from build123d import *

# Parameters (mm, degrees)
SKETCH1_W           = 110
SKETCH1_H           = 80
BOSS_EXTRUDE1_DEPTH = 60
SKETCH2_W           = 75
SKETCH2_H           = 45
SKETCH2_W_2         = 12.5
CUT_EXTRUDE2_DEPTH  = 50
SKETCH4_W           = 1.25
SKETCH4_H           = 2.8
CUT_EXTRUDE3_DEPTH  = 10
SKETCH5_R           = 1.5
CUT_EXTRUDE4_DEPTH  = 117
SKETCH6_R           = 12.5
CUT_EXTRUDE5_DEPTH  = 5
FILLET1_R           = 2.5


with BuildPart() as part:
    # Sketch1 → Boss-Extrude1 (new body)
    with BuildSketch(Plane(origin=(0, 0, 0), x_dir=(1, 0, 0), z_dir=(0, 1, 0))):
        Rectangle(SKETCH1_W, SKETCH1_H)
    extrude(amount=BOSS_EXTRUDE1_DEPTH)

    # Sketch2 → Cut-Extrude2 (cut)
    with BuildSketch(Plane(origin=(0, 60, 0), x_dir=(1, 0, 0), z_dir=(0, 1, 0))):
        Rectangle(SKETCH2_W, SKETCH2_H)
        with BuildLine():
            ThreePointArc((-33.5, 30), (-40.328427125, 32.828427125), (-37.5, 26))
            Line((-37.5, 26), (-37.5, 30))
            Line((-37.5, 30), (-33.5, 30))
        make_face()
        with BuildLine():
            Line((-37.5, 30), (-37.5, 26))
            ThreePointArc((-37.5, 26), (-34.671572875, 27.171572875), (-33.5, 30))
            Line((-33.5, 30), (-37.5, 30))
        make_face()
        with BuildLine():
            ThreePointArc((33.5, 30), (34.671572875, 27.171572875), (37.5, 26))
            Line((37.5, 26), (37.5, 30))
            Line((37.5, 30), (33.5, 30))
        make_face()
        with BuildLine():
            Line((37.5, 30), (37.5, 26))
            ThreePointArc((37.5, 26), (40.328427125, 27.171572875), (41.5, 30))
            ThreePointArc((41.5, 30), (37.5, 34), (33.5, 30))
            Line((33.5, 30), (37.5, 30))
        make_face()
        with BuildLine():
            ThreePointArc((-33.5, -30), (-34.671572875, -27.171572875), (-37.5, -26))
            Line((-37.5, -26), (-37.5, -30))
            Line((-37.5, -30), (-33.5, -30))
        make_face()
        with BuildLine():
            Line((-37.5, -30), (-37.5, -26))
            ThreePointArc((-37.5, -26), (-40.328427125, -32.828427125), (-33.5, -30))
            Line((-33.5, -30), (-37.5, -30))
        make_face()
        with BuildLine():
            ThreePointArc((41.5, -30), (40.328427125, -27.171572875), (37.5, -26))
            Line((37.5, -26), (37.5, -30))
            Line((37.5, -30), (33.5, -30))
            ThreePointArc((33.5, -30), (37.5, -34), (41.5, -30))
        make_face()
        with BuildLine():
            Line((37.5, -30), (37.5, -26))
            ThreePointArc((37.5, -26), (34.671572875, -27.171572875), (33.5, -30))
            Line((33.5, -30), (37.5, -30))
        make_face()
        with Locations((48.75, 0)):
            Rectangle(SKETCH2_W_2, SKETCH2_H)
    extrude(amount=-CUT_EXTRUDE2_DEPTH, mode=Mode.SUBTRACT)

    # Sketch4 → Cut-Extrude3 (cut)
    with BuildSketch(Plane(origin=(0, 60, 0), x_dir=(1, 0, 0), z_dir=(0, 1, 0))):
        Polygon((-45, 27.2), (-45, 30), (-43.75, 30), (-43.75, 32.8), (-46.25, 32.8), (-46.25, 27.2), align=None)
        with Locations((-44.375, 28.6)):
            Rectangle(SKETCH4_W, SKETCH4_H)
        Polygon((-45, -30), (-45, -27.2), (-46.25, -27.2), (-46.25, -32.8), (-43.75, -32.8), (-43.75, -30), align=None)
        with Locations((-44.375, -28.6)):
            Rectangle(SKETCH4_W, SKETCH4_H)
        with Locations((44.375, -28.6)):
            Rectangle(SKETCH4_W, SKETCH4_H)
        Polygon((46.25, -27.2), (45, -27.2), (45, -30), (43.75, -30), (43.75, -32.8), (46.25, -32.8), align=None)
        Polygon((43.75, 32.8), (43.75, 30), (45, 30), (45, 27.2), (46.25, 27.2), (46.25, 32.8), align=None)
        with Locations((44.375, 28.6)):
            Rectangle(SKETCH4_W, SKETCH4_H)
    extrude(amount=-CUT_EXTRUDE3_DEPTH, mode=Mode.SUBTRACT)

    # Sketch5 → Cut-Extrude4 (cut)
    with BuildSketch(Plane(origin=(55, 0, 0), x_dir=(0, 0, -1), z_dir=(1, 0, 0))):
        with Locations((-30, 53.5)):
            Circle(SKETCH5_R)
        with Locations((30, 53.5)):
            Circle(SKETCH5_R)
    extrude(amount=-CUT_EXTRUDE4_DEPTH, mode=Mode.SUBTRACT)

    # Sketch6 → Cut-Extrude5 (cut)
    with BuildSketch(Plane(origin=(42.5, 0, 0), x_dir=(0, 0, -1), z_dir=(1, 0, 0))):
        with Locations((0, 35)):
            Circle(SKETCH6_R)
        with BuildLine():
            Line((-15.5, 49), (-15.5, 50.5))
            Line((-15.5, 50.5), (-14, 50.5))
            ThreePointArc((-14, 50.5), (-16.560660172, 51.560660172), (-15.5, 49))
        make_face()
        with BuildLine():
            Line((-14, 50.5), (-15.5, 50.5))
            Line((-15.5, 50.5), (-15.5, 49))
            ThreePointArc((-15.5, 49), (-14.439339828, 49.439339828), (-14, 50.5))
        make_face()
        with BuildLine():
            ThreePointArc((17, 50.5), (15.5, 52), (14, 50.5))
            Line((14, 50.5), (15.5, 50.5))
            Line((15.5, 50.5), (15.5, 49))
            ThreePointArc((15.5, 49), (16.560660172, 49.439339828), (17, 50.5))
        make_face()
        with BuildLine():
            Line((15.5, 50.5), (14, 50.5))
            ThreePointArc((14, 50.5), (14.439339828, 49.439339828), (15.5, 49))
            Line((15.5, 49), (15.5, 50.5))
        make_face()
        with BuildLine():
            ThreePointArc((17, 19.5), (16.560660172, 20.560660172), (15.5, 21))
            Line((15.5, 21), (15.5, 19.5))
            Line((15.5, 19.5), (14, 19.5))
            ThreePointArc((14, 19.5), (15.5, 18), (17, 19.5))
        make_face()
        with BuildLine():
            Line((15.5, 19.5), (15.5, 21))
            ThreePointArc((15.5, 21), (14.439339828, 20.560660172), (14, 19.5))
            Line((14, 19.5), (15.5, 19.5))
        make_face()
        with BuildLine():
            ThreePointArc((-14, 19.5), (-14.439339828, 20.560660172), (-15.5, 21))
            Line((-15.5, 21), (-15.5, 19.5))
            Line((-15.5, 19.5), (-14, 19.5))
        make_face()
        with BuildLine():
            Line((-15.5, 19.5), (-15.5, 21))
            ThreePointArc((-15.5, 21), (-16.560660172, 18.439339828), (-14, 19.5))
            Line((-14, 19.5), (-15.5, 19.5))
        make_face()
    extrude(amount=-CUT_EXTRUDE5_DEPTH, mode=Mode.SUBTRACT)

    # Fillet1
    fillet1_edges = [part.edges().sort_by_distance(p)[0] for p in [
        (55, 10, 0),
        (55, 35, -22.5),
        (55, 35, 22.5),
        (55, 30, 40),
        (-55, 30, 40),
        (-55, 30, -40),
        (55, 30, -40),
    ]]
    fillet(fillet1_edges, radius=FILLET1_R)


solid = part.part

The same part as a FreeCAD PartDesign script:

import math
import FreeCAD as App
import Part
import Sketcher
from FreeCAD import Vector
Q = App.Units.Quantity


def edges_at(feature, points):
    """Names of the edges that pass closest to the given points."""
    edges = feature.Shape.Edges
    near = lambda p: min(range(len(edges)), key=lambda i: edges[i].distToShape(Part.Vertex(*p))[0])
    return sorted({f"Edge{near(p) + 1}" for p in points})

doc = App.newDocument("Part")
body = doc.addObject("PartDesign::Body", "Body")

sketch1 = doc.addObject("Sketcher::SketchObject", "Sketch")
body.addObject(sketch1)
sketch1.AttachmentSupport = (doc.XZ_Plane, [""])
sketch1.MapMode = "FlatFace"
sketch1.addGeometry([
    Part.LineSegment(Vector(-55, -40, 0), Vector(-55, 40, 0)),
    Part.LineSegment(Vector(-55, 40, 0), Vector(55, 40, 0)),
    Part.LineSegment(Vector(55, 40, 0), Vector(55, -40, 0)),
    Part.LineSegment(Vector(55, -40, 0), Vector(-55, -40, 0)),
], False)
sketch1.addConstraint([
    Sketcher.Constraint("Coincident", 0, 2, 1, 1),
    Sketcher.Constraint("Coincident", 1, 2, 2, 1),
    Sketcher.Constraint("Coincident", 2, 2, 3, 1),
    Sketcher.Constraint("Coincident", 3, 2, 0, 1),
    Sketcher.Constraint("Vertical", 0),
    Sketcher.Constraint("Horizontal", 1),
    Sketcher.Constraint("Vertical", 2),
    Sketcher.Constraint("Horizontal", 3),
    Sketcher.Constraint("Symmetric", 0, 2, 2, 2, -1, 1),
    Sketcher.Constraint("DistanceX", 1, 1, 1, 2, Q("110 mm")),
    Sketcher.Constraint("DistanceY", 0, 1, 0, 2, Q("80 mm")),
])
pad1 = doc.addObject("PartDesign::Pad", "Pad")
body.addObject(pad1)
pad1.Profile = sketch1
pad1.Length = 60
pad1.Reversed = True

sketch2 = doc.addObject("Sketcher::SketchObject", "Sketch001")
body.addObject(sketch2)
sketch2.AttachmentSupport = (doc.XZ_Plane, [""])
sketch2.MapMode = "FlatFace"
sketch2.AttachmentOffset = App.Placement(Vector(0, 0, -60), App.Rotation())
sketch2.addGeometry([
    Part.LineSegment(Vector(-37.5, -22.5, 0), Vector(-37.5, 22.5, 0)),
    Part.LineSegment(Vector(-37.5, 22.5, 0), Vector(37.5, 22.5, 0)),
    Part.LineSegment(Vector(37.5, 22.5, 0), Vector(37.5, -22.5, 0)),
    Part.LineSegment(Vector(37.5, -22.5, 0), Vector(-37.5, -22.5, 0)),
    Part.ArcOfCircle(Part.Circle(Vector(-37.5, -30, 0), Vector(0, 0, 1), 4), math.radians(90), math.radians(360)),
    Part.ArcOfCircle(Part.Circle(Vector(-37.5, -30, 0), Vector(0, 0, 1), 4), math.radians(0), math.radians(90)),
    Part.ArcOfCircle(Part.Circle(Vector(37.5, -30, 0), Vector(0, 0, 1), 4), math.radians(90), math.radians(180)),
    Part.ArcOfCircle(Part.Circle(Vector(37.5, -30, 0), Vector(0, 0, 1), 4), math.radians(0), math.radians(90)),
    Part.ArcOfCircle(Part.Circle(Vector(37.5, -30, 0), Vector(0, 0, 1), 4), math.radians(180), math.radians(360)),
    Part.ArcOfCircle(Part.Circle(Vector(-37.5, 30, 0), Vector(0, 0, 1), 4), math.radians(-90), math.radians(0)),
    Part.ArcOfCircle(Part.Circle(Vector(-37.5, 30, 0), Vector(0, 0, 1), 4), math.radians(0), math.radians(270)),
    Part.ArcOfCircle(Part.Circle(Vector(37.5, 30, 0), Vector(0, 0, 1), 4), math.radians(-90), math.radians(0)),
    Part.ArcOfCircle(Part.Circle(Vector(37.5, 30, 0), Vector(0, 0, 1), 4), math.radians(180), math.radians(270)),
    Part.ArcOfCircle(Part.Circle(Vector(37.5, 30, 0), Vector(0, 0, 1), 4), math.radians(0), math.radians(180)),
    Part.LineSegment(Vector(42.5, -22.5, 0), Vector(42.5, 22.5, 0)),
    Part.LineSegment(Vector(42.5, 22.5, 0), Vector(55, 22.5, 0)),
    Part.LineSegment(Vector(55, 22.5, 0), Vector(55, -22.5, 0)),
    Part.LineSegment(Vector(55, -22.5, 0), Vector(42.5, -22.5, 0)),
], False)
sketch2.addConstraint([
    Sketcher.Constraint("Coincident", 0, 2, 1, 1),
    Sketcher.Constraint("Coincident", 1, 2, 2, 1),
    Sketcher.Constraint("Coincident", 2, 2, 3, 1),
    Sketcher.Constraint("Coincident", 3, 2, 0, 1),
    Sketcher.Constraint("Tangent", 4, 1, 5, 2),
    Sketcher.Constraint("Coincident", 5, 1, 4, 2),
    Sketcher.Constraint("Tangent", 6, 1, 7, 2),
    Sketcher.Constraint("Tangent", 7, 1, 8, 2),
    Sketcher.Constraint("Tangent", 8, 1, 6, 2),
    Sketcher.Constraint("Tangent", 9, 1, 10, 2),
    Sketcher.Constraint("Coincident", 10, 1, 9, 2),
    Sketcher.Constraint("Tangent", 11, 1, 12, 2),
    Sketcher.Constraint("Tangent", 12, 1, 13, 2),
    Sketcher.Constraint("Tangent", 13, 1, 11, 2),
    Sketcher.Constraint("Coincident", 14, 2, 15, 1),
    Sketcher.Constraint("Coincident", 15, 2, 16, 1),
    Sketcher.Constraint("Coincident", 16, 2, 17, 1),
    Sketcher.Constraint("Coincident", 17, 2, 14, 1),
    Sketcher.Constraint("Vertical", 0),
    Sketcher.Constraint("Horizontal", 1),
    Sketcher.Constraint("Vertical", 2),
    Sketcher.Constraint("Horizontal", 3),
    Sketcher.Constraint("Vertical", 14),
    Sketcher.Constraint("Horizontal", 15),
    Sketcher.Constraint("Vertical", 16),
    Sketcher.Constraint("Horizontal", 17),
    Sketcher.Constraint("Equal", 5, 6),
    Sketcher.Constraint("Equal", 8, 9),
    Sketcher.Constraint("Equal", 10, 11),
    Sketcher.Constraint("Symmetric", 6, 3, 9, 3, -1, 1),
    Sketcher.Constraint("Symmetric", 4, 3, 11, 3, -1, 1),
    Sketcher.Constraint("Symmetric", 0, 2, 2, 2, -1, 1),
    Sketcher.Constraint("Symmetric", 4, 3, 6, 3, -2),
    Sketcher.Constraint("Horizontal", 8, 3, 5, 1),
    Sketcher.Constraint("Horizontal", 5, 1, 7, 1),
    Sketcher.Constraint("Horizontal", 7, 1, 8, 1),
    Sketcher.Constraint("Horizontal", 13, 3, 10, 1),
    Sketcher.Constraint("Horizontal", 10, 1, 12, 1),
    Sketcher.Constraint("Horizontal", 12, 1, 13, 1),
    Sketcher.Constraint("Horizontal", 1, 2, 14, 2),
    Sketcher.Constraint("Horizontal", 3, 2, 16, 2),
    Sketcher.Constraint("Vertical", 10, 3, 0, 2),
    Sketcher.Constraint("Vertical", 3, 2, 4, 1),
    Sketcher.Constraint("Vertical", 2, 2, 6, 1),
    Sketcher.Constraint("Vertical", 4, 1, 9, 1),
    Sketcher.Constraint("Vertical", 6, 1, 11, 1),
    Sketcher.Constraint("Radius", 4, Q("4 mm")),
    Sketcher.Constraint("DistanceX", 1, 1, 1, 2, Q("75 mm")),
    Sketcher.Constraint("DistanceY", 0, 1, 0, 2, Q("45 mm")),
    Sketcher.Constraint("DistanceX", 15, 1, 15, 2, Q("12.5 mm")),
    Sketcher.Constraint("DistanceY", 4, 3, -1, 1, Q("30 mm")),
    Sketcher.Constraint("DistanceX", -1, 1, 15, 2, Q("55 mm")),
])
pocket1 = doc.addObject("PartDesign::Pocket", "Pocket")
body.addObject(pocket1)
pocket1.Profile = sketch2
pocket1.Length = 50
pocket1.Reversed = True

sketch3 = doc.addObject("Sketcher::SketchObject", "Sketch002")
body.addObject(sketch3)
sketch3.AttachmentSupport = (doc.XZ_Plane, [""])
sketch3.MapMode = "FlatFace"
sketch3.AttachmentOffset = App.Placement(Vector(0, 0, -60), App.Rotation())
sketch3.addGeometry([
    Part.LineSegment(Vector(-43.75, -32.8, 0), Vector(-46.25, -32.8, 0)),
    Part.LineSegment(Vector(-46.25, -32.8, 0), Vector(-46.25, -27.2, 0)),
    Part.LineSegment(Vector(-46.25, -27.2, 0), Vector(-43.75, -27.2, 0)),
    Part.LineSegment(Vector(-43.75, -27.2, 0), Vector(-43.75, -32.8, 0)),
    Part.LineSegment(Vector(-46.25, 27.2, 0), Vector(-46.25, 32.8, 0)),
    Part.LineSegment(Vector(-46.25, 32.8, 0), Vector(-43.75, 32.8, 0)),
    Part.LineSegment(Vector(-43.75, 32.8, 0), Vector(-43.75, 27.2, 0)),
    Part.LineSegment(Vector(-43.75, 27.2, 0), Vector(-46.25, 27.2, 0)),
    Part.LineSegment(Vector(43.75, 27.2, 0), Vector(43.75, 32.8, 0)),
    Part.LineSegment(Vector(43.75, 32.8, 0), Vector(46.25, 32.8, 0)),
    Part.LineSegment(Vector(46.25, 32.8, 0), Vector(46.25, 27.2, 0)),
    Part.LineSegment(Vector(46.25, 27.2, 0), Vector(43.75, 27.2, 0)),
    Part.LineSegment(Vector(43.75, -32.8, 0), Vector(43.75, -27.2, 0)),
    Part.LineSegment(Vector(43.75, -27.2, 0), Vector(46.25, -27.2, 0)),
    Part.LineSegment(Vector(46.25, -27.2, 0), Vector(46.25, -32.8, 0)),
    Part.LineSegment(Vector(46.25, -32.8, 0), Vector(43.75, -32.8, 0)),
], False)
sketch3.addConstraint([
    Sketcher.Constraint("Coincident", 0, 2, 1, 1),
    Sketcher.Constraint("Coincident", 1, 2, 2, 1),
    Sketcher.Constraint("Coincident", 2, 2, 3, 1),
    Sketcher.Constraint("Coincident", 3, 2, 0, 1),
    Sketcher.Constraint("Coincident", 4, 2, 5, 1),
    Sketcher.Constraint("Coincident", 5, 2, 6, 1),
    Sketcher.Constraint("Coincident", 6, 2, 7, 1),
    Sketcher.Constraint("Coincident", 7, 2, 4, 1),
    Sketcher.Constraint("Coincident", 8, 2, 9, 1),
    Sketcher.Constraint("Coincident", 9, 2, 10, 1),
    Sketcher.Constraint("Coincident", 10, 2, 11, 1),
    Sketcher.Constraint("Coincident", 11, 2, 8, 1),
    Sketcher.Constraint("Coincident", 12, 2, 13, 1),
    Sketcher.Constraint("Coincident", 13, 2, 14, 1),
    Sketcher.Constraint("Coincident", 14, 2, 15, 1),
    Sketcher.Constraint("Coincident", 15, 2, 12, 1),
    Sketcher.Constraint("Horizontal", 0),
    Sketcher.Constraint("Vertical", 1),
    Sketcher.Constraint("Horizontal", 2),
    Sketcher.Constraint("Vertical", 3),
    Sketcher.Constraint("Vertical", 4),
    Sketcher.Constraint("Horizontal", 5),
    Sketcher.Constraint("Vertical", 6),
    Sketcher.Constraint("Horizontal", 7),
    Sketcher.Constraint("Vertical", 8),
    Sketcher.Constraint("Horizontal", 9),
    Sketcher.Constraint("Vertical", 10),
    Sketcher.Constraint("Horizontal", 11),
    Sketcher.Constraint("Vertical", 12),
    Sketcher.Constraint("Horizontal", 13),
    Sketcher.Constraint("Vertical", 14),
    Sketcher.Constraint("Horizontal", 15),
    Sketcher.Constraint("Symmetric", 3, 2, 8, 2, -1, 1),
    Sketcher.Constraint("Symmetric", 1, 2, 10, 2, -1, 1),
    Sketcher.Constraint("Symmetric", 6, 2, 12, 2, -1, 1),
    Sketcher.Constraint("Symmetric", 4, 2, 14, 2, -1, 1),
    Sketcher.Constraint("Symmetric", 5, 2, 8, 2, -2),
    Sketcher.Constraint("Symmetric", 7, 2, 10, 2, -2),
    Sketcher.Constraint("DistanceX", 0, 2, 0, 1, Q("2.5 mm")),
    Sketcher.Constraint("DistanceY", 1, 1, 1, 2, Q("5.6 mm")),
    Sketcher.Constraint("DistanceY", 1, 2, 4, 2, Q("60 mm")),
    Sketcher.Constraint("DistanceX", 4, 2, 8, 2, Q("90 mm")),
])
pocket2 = doc.addObject("PartDesign::Pocket", "Pocket001")
body.addObject(pocket2)
pocket2.Profile = sketch3
pocket2.Length = 10
pocket2.Reversed = True

sketch4 = doc.addObject("Sketcher::SketchObject", "Sketch003")
body.addObject(sketch4)
sketch4.AttachmentSupport = (doc.YZ_Plane, [""])
sketch4.MapMode = "FlatFace"
sketch4.AttachmentOffset = App.Placement(Vector(0, 0, 55), App.Rotation())
sketch4.addGeometry([
    Part.Circle(Vector(53.5, 30, 0), Vector(0, 0, 1), 1.5),
    Part.Circle(Vector(53.5, -30, 0), Vector(0, 0, 1), 1.5),
], False)
sketch4.addConstraint([
    Sketcher.Constraint("Equal", 0, 1),
    Sketcher.Constraint("Symmetric", 0, 3, 1, 3, -1),
    Sketcher.Constraint("Diameter", 0, Q("3 mm")),
    Sketcher.Constraint("DistanceY", -1, 1, 0, 3, Q("30 mm")),
    Sketcher.Constraint("DistanceX", -1, 1, 0, 3, Q("53.5 mm")),
])
pocket3 = doc.addObject("PartDesign::Pocket", "Pocket002")
body.addObject(pocket3)
pocket3.Profile = sketch4
pocket3.Length = 117

sketch5 = doc.addObject("Sketcher::SketchObject", "Sketch004")
body.addObject(sketch5)
sketch5.AttachmentSupport = (doc.YZ_Plane, [""])
sketch5.MapMode = "FlatFace"
sketch5.AttachmentOffset = App.Placement(Vector(0, 0, 42.5), App.Rotation())
sketch5.addGeometry([
    Part.Circle(Vector(35, 0, 0), Vector(0, 0, 1), 12.5),
    Part.ArcOfCircle(Part.Circle(Vector(50.5, 15.5, 0), Vector(0, 0, 1), 1.5), math.radians(-90), math.radians(180)),
    Part.ArcOfCircle(Part.Circle(Vector(50.5, 15.5, 0), Vector(0, 0, 1), 1.5), math.radians(180), math.radians(270)),
    Part.ArcOfCircle(Part.Circle(Vector(50.5, -15.5, 0), Vector(0, 0, 1), 1.5), math.radians(-90), math.radians(90)),
    Part.ArcOfCircle(Part.Circle(Vector(50.5, -15.5, 0), Vector(0, 0, 1), 1.5), math.radians(90), math.radians(180)),
    Part.ArcOfCircle(Part.Circle(Vector(50.5, -15.5, 0), Vector(0, 0, 1), 1.5), math.radians(180), math.radians(270)),
    Part.ArcOfCircle(Part.Circle(Vector(19.5, -15.5, 0), Vector(0, 0, 1), 1.5), math.radians(-90), math.radians(0)),
    Part.ArcOfCircle(Part.Circle(Vector(19.5, -15.5, 0), Vector(0, 0, 1), 1.5), math.radians(0), math.radians(90)),
    Part.ArcOfCircle(Part.Circle(Vector(19.5, -15.5, 0), Vector(0, 0, 1), 1.5), math.radians(90), math.radians(270)),
    Part.ArcOfCircle(Part.Circle(Vector(19.5, 15.5, 0), Vector(0, 0, 1), 1.5), math.radians(-90), math.radians(0)),
    Part.ArcOfCircle(Part.Circle(Vector(19.5, 15.5, 0), Vector(0, 0, 1), 1.5), math.radians(0), math.radians(270)),
], False)
sketch5.addConstraint([
    Sketcher.Constraint("Tangent", 1, 1, 2, 2),
    Sketcher.Constraint("Coincident", 2, 1, 1, 2),
    Sketcher.Constraint("Tangent", 3, 2, 4, 1),
    Sketcher.Constraint("Tangent", 4, 2, 5, 1),
    Sketcher.Constraint("Tangent", 5, 2, 3, 1),
    Sketcher.Constraint("Tangent", 6, 2, 7, 1),
    Sketcher.Constraint("Tangent", 7, 2, 8, 1),
    Sketcher.Constraint("Tangent", 8, 2, 6, 1),
    Sketcher.Constraint("Tangent", 9, 1, 10, 2),
    Sketcher.Constraint("Coincident", 10, 1, 9, 2),
    Sketcher.Constraint("Equal", 2, 3),
    Sketcher.Constraint("Equal", 5, 6),
    Sketcher.Constraint("Equal", 8, 9),
    Sketcher.Constraint("Symmetric", 1, 3, 3, 3, -1),
    Sketcher.Constraint("Symmetric", 6, 3, 9, 3, -1),
    Sketcher.Constraint("PointOnObject", 0, 3, -1),
    Sketcher.Constraint("Horizontal", 5, 3, 6, 3),
    Sketcher.Constraint("Horizontal", 10, 3, 2, 1),
    Sketcher.Constraint("Horizontal", 8, 3, 4, 2),
    Sketcher.Constraint("Horizontal", 4, 2, 6, 2),
    Sketcher.Constraint("Horizontal", 2, 1, 10, 1),
    Sketcher.Constraint("Vertical", 5, 3, 1, 1),
    Sketcher.Constraint("Vertical", 1, 1, 3, 2),
    Sketcher.Constraint("Vertical", 3, 2, 5, 2),
    Sketcher.Constraint("Vertical", 10, 3, 7, 2),
    Sketcher.Constraint("Vertical", 7, 2, 8, 2),
    Sketcher.Constraint("Vertical", 8, 2, 9, 1),
    Sketcher.Constraint("Diameter", 0, Q("25 mm")),
    Sketcher.Constraint("Radius", 1, Q("1.5 mm")),
    Sketcher.Constraint("DistanceX", -1, 1, 0, 3, Q("35 mm")),
    Sketcher.Constraint("DistanceY", -1, 1, 1, 1, Q("14 mm")),
    Sketcher.Constraint("DistanceX", -1, 1, 2, 1, Q("49 mm")),
    Sketcher.Constraint("DistanceX", -1, 1, 6, 2, Q("21 mm")),
])
pocket4 = doc.addObject("PartDesign::Pocket", "Pocket003")
body.addObject(pocket4)
pocket4.Profile = sketch5
pocket4.Length = 5
doc.recompute()

fillet = doc.addObject("PartDesign::Fillet", "Fillet")
body.addObject(fillet)
fillet.Base = (pocket4, edges_at(pocket4, [
    (55, 10, 0),
    (55, 35, -22.5),
    (55, 35, 22.5),
    (55, 30, 40),
    (-55, 30, 40),
    (-55, 30, -40),
    (55, 30, -40),
]))
fillet.Radius = 2.5

doc.recompute()
